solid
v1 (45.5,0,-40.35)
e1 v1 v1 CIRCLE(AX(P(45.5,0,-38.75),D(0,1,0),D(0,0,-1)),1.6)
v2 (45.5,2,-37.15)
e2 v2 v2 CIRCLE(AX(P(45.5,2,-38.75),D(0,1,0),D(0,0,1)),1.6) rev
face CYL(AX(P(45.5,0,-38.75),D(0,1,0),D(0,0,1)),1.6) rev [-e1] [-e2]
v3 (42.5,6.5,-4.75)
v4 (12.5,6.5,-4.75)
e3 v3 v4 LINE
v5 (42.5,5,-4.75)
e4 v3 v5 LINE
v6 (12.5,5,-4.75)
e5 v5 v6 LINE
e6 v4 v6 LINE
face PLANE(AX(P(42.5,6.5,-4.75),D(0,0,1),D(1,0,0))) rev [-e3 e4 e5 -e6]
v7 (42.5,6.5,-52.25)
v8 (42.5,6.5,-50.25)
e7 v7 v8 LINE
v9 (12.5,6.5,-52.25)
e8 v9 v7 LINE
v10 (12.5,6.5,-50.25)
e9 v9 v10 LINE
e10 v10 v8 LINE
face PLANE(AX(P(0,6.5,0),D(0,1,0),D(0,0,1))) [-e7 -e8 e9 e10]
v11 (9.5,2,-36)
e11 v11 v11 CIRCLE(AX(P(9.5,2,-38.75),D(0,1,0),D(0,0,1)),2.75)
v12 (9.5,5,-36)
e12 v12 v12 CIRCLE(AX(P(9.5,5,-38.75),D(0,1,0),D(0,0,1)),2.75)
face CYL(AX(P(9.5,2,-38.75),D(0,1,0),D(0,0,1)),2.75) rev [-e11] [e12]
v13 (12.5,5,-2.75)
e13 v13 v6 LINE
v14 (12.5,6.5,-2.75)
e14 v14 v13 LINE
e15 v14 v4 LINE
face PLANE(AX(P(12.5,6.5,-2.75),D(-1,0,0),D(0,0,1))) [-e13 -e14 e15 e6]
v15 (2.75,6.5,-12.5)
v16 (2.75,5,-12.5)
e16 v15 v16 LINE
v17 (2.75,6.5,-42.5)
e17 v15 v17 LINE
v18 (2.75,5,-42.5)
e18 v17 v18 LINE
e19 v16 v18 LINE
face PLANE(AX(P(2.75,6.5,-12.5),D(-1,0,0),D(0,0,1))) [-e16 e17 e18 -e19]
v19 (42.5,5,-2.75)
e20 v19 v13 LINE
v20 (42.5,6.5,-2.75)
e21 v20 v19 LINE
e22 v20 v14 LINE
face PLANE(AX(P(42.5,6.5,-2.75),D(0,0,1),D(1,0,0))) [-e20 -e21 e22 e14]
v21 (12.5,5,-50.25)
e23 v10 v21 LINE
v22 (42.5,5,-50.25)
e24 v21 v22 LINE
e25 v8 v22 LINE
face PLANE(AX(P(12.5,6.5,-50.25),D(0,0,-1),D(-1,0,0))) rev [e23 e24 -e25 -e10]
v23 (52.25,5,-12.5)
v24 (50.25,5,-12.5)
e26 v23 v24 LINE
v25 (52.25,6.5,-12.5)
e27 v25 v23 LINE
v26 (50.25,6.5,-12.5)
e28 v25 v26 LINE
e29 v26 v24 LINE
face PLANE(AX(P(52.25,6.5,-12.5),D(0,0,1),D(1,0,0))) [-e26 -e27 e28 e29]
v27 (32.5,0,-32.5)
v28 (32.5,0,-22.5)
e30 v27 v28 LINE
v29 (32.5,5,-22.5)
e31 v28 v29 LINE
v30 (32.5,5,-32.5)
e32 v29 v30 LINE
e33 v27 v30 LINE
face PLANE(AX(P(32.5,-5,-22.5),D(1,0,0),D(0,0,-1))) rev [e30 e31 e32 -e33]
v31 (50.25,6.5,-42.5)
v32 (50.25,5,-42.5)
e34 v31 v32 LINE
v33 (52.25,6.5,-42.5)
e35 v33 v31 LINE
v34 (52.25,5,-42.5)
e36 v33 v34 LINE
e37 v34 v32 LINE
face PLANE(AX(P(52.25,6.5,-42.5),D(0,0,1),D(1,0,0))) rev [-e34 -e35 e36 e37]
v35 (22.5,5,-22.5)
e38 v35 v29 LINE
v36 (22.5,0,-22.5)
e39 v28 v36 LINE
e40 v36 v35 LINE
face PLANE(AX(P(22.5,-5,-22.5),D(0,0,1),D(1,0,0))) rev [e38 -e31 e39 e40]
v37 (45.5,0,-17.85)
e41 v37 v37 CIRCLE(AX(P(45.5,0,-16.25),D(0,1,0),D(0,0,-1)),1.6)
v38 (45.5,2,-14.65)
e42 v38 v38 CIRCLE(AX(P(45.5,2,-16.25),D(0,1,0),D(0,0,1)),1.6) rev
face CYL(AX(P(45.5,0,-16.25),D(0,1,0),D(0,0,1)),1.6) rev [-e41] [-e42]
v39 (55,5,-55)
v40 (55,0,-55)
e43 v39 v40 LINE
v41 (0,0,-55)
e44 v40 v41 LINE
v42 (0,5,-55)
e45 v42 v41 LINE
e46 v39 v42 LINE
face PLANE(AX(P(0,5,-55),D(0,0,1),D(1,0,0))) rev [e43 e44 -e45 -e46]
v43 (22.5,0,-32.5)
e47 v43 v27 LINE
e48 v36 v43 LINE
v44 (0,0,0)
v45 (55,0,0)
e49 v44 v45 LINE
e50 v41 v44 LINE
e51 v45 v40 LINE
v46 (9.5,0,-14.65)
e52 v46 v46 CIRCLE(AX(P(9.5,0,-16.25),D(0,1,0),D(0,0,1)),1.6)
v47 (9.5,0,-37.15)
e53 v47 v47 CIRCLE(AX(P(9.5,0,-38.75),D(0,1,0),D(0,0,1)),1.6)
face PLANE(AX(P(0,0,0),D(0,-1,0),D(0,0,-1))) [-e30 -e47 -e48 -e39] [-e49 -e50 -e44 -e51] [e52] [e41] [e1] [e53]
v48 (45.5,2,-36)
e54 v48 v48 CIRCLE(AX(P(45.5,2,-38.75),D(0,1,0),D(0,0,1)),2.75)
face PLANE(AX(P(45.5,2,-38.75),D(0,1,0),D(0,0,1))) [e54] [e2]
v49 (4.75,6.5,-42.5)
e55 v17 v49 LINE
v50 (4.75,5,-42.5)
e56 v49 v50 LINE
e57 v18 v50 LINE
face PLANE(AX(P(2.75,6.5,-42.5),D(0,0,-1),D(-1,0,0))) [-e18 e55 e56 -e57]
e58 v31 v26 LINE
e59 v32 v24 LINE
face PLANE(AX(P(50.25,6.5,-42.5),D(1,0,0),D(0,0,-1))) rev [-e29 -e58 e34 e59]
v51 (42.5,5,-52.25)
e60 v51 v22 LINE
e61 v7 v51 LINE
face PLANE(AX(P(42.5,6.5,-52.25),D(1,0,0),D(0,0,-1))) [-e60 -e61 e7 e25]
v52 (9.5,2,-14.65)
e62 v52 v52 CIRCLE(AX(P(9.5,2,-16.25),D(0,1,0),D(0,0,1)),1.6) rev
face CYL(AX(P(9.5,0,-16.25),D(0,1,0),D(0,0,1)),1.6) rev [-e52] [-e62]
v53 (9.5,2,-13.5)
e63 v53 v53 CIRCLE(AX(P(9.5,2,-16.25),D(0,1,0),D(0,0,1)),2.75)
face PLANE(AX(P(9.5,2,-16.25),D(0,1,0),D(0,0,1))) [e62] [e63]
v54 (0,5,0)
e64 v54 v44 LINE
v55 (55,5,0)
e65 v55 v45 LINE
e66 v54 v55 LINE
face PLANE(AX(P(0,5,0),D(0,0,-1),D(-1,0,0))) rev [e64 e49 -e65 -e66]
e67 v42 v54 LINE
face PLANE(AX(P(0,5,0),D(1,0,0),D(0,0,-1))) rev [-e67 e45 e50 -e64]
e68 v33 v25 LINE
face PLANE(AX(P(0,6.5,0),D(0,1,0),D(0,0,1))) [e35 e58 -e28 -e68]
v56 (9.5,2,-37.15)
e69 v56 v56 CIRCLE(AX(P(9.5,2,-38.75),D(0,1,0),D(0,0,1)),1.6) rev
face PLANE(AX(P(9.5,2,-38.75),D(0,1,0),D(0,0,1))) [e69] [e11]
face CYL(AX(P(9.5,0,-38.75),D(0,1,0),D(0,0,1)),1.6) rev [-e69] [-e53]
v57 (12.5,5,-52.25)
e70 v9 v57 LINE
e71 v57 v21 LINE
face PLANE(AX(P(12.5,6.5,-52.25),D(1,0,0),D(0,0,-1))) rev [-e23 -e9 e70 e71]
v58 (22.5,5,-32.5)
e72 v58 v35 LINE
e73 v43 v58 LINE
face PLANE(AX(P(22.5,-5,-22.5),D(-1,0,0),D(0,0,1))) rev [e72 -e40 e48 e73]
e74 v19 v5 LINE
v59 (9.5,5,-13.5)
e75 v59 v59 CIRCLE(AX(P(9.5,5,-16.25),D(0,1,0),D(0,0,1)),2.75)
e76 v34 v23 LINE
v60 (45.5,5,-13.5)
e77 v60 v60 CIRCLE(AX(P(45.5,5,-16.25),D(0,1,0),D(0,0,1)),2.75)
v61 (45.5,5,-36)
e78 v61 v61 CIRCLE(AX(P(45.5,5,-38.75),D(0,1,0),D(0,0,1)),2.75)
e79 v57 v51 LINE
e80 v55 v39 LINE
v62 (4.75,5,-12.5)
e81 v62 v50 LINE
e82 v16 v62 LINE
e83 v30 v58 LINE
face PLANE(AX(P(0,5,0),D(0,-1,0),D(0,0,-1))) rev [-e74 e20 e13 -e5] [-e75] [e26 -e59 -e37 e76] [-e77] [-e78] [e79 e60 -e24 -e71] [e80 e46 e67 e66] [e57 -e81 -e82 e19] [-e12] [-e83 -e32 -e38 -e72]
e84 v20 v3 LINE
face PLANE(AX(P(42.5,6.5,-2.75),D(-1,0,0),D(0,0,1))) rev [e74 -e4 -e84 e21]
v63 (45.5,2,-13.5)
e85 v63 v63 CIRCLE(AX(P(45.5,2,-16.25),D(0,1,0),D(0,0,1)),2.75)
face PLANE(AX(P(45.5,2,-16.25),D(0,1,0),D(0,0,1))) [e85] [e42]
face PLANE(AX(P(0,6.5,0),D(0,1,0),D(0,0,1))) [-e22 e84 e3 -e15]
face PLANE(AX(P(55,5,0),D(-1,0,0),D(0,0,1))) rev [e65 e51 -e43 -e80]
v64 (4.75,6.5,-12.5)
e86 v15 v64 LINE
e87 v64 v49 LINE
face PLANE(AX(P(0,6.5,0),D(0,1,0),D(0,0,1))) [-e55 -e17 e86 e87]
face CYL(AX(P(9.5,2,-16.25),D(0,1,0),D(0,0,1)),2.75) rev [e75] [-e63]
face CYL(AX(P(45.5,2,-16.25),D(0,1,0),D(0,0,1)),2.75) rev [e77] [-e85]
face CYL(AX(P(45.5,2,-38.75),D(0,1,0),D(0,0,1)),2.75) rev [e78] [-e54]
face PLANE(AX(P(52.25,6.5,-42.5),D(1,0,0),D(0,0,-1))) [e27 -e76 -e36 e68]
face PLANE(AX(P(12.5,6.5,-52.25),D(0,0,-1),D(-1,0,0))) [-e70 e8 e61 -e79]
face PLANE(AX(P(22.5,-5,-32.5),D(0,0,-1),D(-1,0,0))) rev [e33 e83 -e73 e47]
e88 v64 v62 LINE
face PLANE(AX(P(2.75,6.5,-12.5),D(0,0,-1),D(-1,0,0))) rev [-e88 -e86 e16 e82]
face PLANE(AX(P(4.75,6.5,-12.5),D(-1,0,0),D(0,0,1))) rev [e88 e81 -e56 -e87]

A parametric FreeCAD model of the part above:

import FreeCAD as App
import Part
import Sketcher

V = App.Vector
Q = App.Units.Quantity


def add_polygon(sketch, points):
    """Adds a closed chain of lines whose ends are joined by coincident constraints."""
    first, n = sketch.GeometryCount, len(points)
    for a, b in zip(points, points[1:] + points[:1]):
        sketch.addGeometry(Part.LineSegment(App.Vector(*a, 0), App.Vector(*b, 0)), False)
    for i in range(n):
        sketch.addConstraint(Sketcher.Constraint("Coincident", first + i, 2, first + (i + 1) % n, 1))

doc = App.newDocument("Part")
body = doc.addObject("PartDesign::Body", "Body")

sketch1 = body.newObject("Sketcher::SketchObject", "Sketch")
sketch1.AttachmentSupport = (doc.getObject("XZ_Plane"), [""])
sketch1.MapMode = "FlatFace"
add_polygon(sketch1, [(0, -55), (0, 0), (55, 0), (55, -55)])
sketch1.addConstraint(Sketcher.Constraint("Vertical", 0))
sketch1.addConstraint(Sketcher.Constraint("Horizontal", 1))
sketch1.addConstraint(Sketcher.Constraint("Vertical", 2))
sketch1.addConstraint(Sketcher.Constraint("Horizontal", 3))
sketch1.addConstraint(Sketcher.Constraint("Coincident", 0, 2, -1, 1))
sketch1.addConstraint(Sketcher.Constraint("Equal", 3, 0))
sketch1.addConstraint(Sketcher.Constraint("DistanceX", 1, 1, 1, 2, Q("55 mm")))
pad1 = body.newObject("PartDesign::Pad", "Pad")
pad1.Profile = sketch1
pad1.Length = 5
pad1.Reversed = True

sketch2 = body.newObject("Sketcher::SketchObject", "Sketch001")
sketch2.AttachmentSupport = (doc.getObject("XZ_Plane"), [""])
sketch2.MapMode = "FlatFace"
sketch2.AttachmentOffset = App.Placement(V(0, 0, -5), App.Rotation())
add_polygon(sketch2, [(12.5, -52.2), (12.5, -50.2), (42.5, -50.2), (42.5, -52.2)])
add_polygon(sketch2, [(2.8, -42.5), (2.8, -12.5), (4.8, -12.5), (4.8, -42.5)])
add_polygon(sketch2, [(50.2, -42.5), (50.2, -12.5), (52.2, -12.5), (52.2, -42.5)])
add_polygon(sketch2, [(12.5, -4.8), (12.5, -2.8), (42.5, -2.8), (42.5, -4.8)])
sketch2.addConstraint(Sketcher.Constraint("Vertical", 0))
sketch2.addConstraint(Sketcher.Constraint("Horizontal", 1))
sketch2.addConstraint(Sketcher.Constraint("Vertical", 2))
sketch2.addConstraint(Sketcher.Constraint("Horizontal", 3))
sketch2.addConstraint(Sketcher.Constraint("Vertical", 4))
sketch2.addConstraint(Sketcher.Constraint("Horizontal", 5))
sketch2.addConstraint(Sketcher.Constraint("Vertical", 6))
sketch2.addConstraint(Sketcher.Constraint("Horizontal", 7))
sketch2.addConstraint(Sketcher.Constraint("Vertical", 8))
sketch2.addConstraint(Sketcher.Constraint("Horizontal", 9))
sketch2.addConstraint(Sketcher.Constraint("Vertical", 10))
sketch2.addConstraint(Sketcher.Constraint("Horizontal", 11))
sketch2.addConstraint(Sketcher.Constraint("Vertical", 12))
sketch2.addConstraint(Sketcher.Constraint("Horizontal", 13))
sketch2.addConstraint(Sketcher.Constraint("Vertical", 14))
sketch2.addConstraint(Sketcher.Constraint("Horizontal", 15))
sketch2.addConstraint(Sketcher.Constraint("Horizontal", 5, 2, 8, 2))
sketch2.addConstraint(Sketcher.Constraint("Horizontal", 7, 2, 10, 2))
sketch2.addConstraint(Sketcher.Constraint("Vertical", 3, 2, 12, 2))
sketch2.addConstraint(Sketcher.Constraint("Vertical", 2, 2, 13, 2))
sketch2.addConstraint(Sketcher.Constraint("Equal", 7, 9))
sketch2.addConstraint(Sketcher.Constraint("Equal", 11, 0))
sketch2.addConstraint(Sketcher.Constraint("Equal", 15, 4))
sketch2.addConstraint(Sketcher.Constraint("Equal", 2, 12))
sketch2.addConstraint(Sketcher.Constraint("DistanceX", 1, 1, 1, 2, Q("30 mm")))
sketch2.addConstraint(Sketcher.Constraint("DistanceX", 5, 1, 5, 2, Q("2 mm")))
sketch2.addConstraint(Sketcher.Constraint("DistanceX", -1, 1, 0, 2, Q("12.5 mm")))
sketch2.addConstraint(Sketcher.Constraint("DistanceY", 4, 2, -1, 1, Q("12.5 mm")))
sketch2.addConstraint(Sketcher.Constraint("DistanceX", 5, 2, 8, 2, Q("45.5 mm")))
sketch2.addConstraint(Sketcher.Constraint("DistanceY", 0, 2, -1, 1, Q("50.25 mm")))
sketch2.addConstraint(Sketcher.Constraint("DistanceX", -1, 1, 4, 2, Q("2.75 mm")))
sketch2.addConstraint(Sketcher.Constraint("DistanceY", 12, 2, -1, 1, Q("2.75 mm")))
pad2 = body.newObject("PartDesign::Pad", "Pad001")
pad2.Profile = sketch2
pad2.Length = 1.5
pad2.Reversed = True

sketch3 = body.newObject("Sketcher::SketchObject", "Sketch002")
sketch3.AttachmentSupport = (doc.getObject("XZ_Plane"), [""])
sketch3.MapMode = "FlatFace"
sketch3.AttachmentOffset = App.Placement(V(0, 0, -5), App.Rotation())
sketch3.addGeometry(Part.Circle(V(9.5, -38.8, 0), V(0, 0, 1), 1.6), False)
sketch3.addGeometry(Part.Circle(V(9.5, -16.2, 0), V(0, 0, 1), 1.6), False)
sketch3.addGeometry(Part.Circle(V(45.5, -38.8, 0), V(0, 0, 1), 1.6), False)
sketch3.addGeometry(Part.Circle(V(45.5, -16.2, 0), V(0, 0, 1), 1.6), False)
sketch3.addConstraint(Sketcher.Constraint("Equal", 0, 1))
sketch3.addConstraint(Sketcher.Constraint("Equal", 1, 2))
sketch3.addConstraint(Sketcher.Constraint("Equal", 2, 3))
sketch3.addConstraint(Sketcher.Constraint("Horizontal", 0, 3, 2, 3))
sketch3.addConstraint(Sketcher.Constraint("Horizontal", 1, 3, 3, 3))
sketch3.addConstraint(Sketcher.Constraint("Vertical", 0, 3, 1, 3))
sketch3.addConstraint(Sketcher.Constraint("Vertical", 2, 3, 3, 3))
sketch3.addConstraint(Sketcher.Constraint("Diameter", 0, Q("3.2 mm")))
sketch3.addConstraint(Sketcher.Constraint("DistanceX", 0, 3, 2, 3, Q("36 mm")))
sketch3.addConstraint(Sketcher.Constraint("DistanceX", -1, 1, 0, 3, Q("9.5 mm")))
sketch3.addConstraint(Sketcher.Constraint("DistanceY", 0, 3, 1, 3, Q("22.5 mm")))
sketch3.addConstraint(Sketcher.Constraint("DistanceY", 0, 3, -1, 1, Q("38.75 mm")))
pocket1 = body.newObject("PartDesign::Pocket", "Pocket")
pocket1.Profile = sketch3
pocket1.Length = 5
pocket1.Reversed = True

sketch4 = body.newObject("Sketcher::SketchObject", "Sketch003")
sketch4.AttachmentSupport = (doc.getObject("XZ_Plane"), [""])
sketch4.MapMode = "FlatFace"
sketch4.AttachmentOffset = App.Placement(V(0, 0, -5), App.Rotation())
add_polygon(sketch4, [(22, -32), (22, -22), (32, -22), (32, -32)])
sketch4.addConstraint(Sketcher.Constraint("Vertical", 0))
sketch4.addConstraint(Sketcher.Constraint("Horizontal", 1))
sketch4.addConstraint(Sketcher.Constraint("Vertical", 2))
sketch4.addConstraint(Sketcher.Constraint("Horizontal", 3))
sketch4.addConstraint(Sketcher.Constraint("Equal", 3, 0))
sketch4.addConstraint(Sketcher.Constraint("DistanceX", 1, 1, 1, 2, Q("10 mm")))
sketch4.addConstraint(Sketcher.Constraint("DistanceX", -1, 1, 0, 2, Q("22.5 mm")))
sketch4.addConstraint(Sketcher.Constraint("DistanceY", 0, 2, -1, 1, Q("22.5 mm")))
pocket2 = body.newObject("PartDesign::Pocket", "Pocket001")
pocket2.Profile = sketch4
pocket2.Length = 10
pocket2.Reversed = True

sketch5 = body.newObject("Sketcher::SketchObject", "Sketch004")
sketch5.AttachmentSupport = (doc.getObject("XZ_Plane"), [""])
sketch5.MapMode = "FlatFace"
sketch5.AttachmentOffset = App.Placement(V(0, 0, -5), App.Rotation())
sketch5.addGeometry(Part.Circle(V(9.5, -38.8, 0), V(0, 0, 1), 2.8), False)
sketch5.addGeometry(Part.Circle(V(45.5, -38.8, 0), V(0, 0, 1), 2.8), False)
sketch5.addGeometry(Part.Circle(V(45.5, -16.2, 0), V(0, 0, 1), 2.8), False)
sketch5.addGeometry(Part.Circle(V(9.5, -16.2, 0), V(0, 0, 1), 2.8), False)
sketch5.addConstraint(Sketcher.Constraint("Equal", 0, 1))
sketch5.addConstraint(Sketcher.Constraint("Equal", 1, 2))
sketch5.addConstraint(Sketcher.Constraint("Equal", 2, 3))
sketch5.addConstraint(Sketcher.Constraint("Horizontal", 0, 3, 1, 3))
sketch5.addConstraint(Sketcher.Constraint("Horizontal", 2, 3, 3, 3))
sketch5.addConstraint(Sketcher.Constraint("Vertical", 1, 3, 2, 3))
sketch5.addConstraint(Sketcher.Constraint("Vertical", 0, 3, 3, 3))
sketch5.addConstraint(Sketcher.Constraint("Diameter", 0, Q("5.5 mm")))
sketch5.addConstraint(Sketcher.Constraint("DistanceX", 0, 3, 1, 3, Q("36 mm")))
sketch5.addConstraint(Sketcher.Constraint("DistanceX", -1, 1, 0, 3, Q("9.5 mm")))
sketch5.addConstraint(Sketcher.Constraint("DistanceY", 1, 3, 2, 3, Q("22.5 mm")))
sketch5.addConstraint(Sketcher.Constraint("DistanceY", 0, 3, -1, 1, Q("38.75 mm")))
pocket3 = body.newObject("PartDesign::Pocket", "Pocket002")
pocket3.Profile = sketch5
pocket3.Length = 3
pocket3.Reversed = True

doc.recompute()
